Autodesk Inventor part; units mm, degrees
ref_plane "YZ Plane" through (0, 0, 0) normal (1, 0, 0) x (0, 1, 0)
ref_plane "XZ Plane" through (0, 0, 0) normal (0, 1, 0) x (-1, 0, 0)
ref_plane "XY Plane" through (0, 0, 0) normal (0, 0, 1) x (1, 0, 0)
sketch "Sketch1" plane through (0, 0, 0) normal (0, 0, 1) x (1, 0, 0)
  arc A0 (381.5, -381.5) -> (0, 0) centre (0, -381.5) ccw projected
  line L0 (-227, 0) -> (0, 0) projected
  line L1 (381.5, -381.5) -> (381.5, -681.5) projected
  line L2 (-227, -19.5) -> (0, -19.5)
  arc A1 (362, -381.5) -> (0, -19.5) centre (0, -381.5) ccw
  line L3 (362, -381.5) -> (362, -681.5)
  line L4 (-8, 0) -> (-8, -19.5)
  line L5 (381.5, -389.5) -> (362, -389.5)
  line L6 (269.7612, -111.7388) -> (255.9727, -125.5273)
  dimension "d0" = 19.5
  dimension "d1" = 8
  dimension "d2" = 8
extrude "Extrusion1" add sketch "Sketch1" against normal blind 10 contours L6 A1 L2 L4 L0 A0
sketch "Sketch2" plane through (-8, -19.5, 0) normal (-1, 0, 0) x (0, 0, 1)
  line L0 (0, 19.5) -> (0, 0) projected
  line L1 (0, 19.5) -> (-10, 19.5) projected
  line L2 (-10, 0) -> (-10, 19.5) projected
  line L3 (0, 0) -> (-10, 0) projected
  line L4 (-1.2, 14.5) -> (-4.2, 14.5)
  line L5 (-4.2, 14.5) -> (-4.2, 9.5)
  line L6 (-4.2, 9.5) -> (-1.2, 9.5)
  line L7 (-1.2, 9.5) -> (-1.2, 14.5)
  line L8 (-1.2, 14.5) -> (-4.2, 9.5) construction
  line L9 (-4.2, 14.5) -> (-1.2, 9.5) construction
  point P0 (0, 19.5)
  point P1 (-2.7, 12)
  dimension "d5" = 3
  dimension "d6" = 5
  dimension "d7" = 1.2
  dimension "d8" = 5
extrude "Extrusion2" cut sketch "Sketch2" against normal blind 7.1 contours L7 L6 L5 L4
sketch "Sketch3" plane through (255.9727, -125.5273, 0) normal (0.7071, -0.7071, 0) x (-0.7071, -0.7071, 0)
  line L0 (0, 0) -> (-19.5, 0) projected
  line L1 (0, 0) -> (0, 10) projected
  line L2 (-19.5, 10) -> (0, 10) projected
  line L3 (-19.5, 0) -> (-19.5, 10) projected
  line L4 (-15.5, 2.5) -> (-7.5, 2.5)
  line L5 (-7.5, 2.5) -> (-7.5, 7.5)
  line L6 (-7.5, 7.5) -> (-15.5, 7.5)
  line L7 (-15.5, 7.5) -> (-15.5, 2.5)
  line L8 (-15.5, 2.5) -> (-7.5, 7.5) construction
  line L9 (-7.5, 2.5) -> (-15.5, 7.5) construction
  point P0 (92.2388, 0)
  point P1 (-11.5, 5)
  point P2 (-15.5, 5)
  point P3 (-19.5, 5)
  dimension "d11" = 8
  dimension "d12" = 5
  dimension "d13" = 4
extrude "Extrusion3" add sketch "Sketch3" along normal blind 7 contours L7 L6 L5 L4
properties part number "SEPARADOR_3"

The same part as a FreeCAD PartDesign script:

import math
import FreeCAD as App
import Part
import Sketcher
from FreeCAD import Vector
Q = App.Units.Quantity

doc = App.newDocument("Part")
params = doc.addObject("Spreadsheet::Sheet", "Params")
for row, (alias, value) in enumerate([
    ("sketch1_width", "8 mm"),
    ("sketch1_height", "19.5 mm"),
    ("sketch1_radius", "362 mm"),
    ("pad1_length", "10 mm"),
    ("sketch2_width", "5 mm"),
    ("sketch2_height", "3 mm"),
    ("pocket1_length", "7.1 mm"),
    ("sketch3_width", "8 mm"),
    ("sketch3_height", "5 mm"),
    ("pad2_length", "7 mm"),
], start=1):
    params.set(f"A{row}", alias)
    params.set(f"B{row}", "=" + value)
    params.setAlias(f"B{row}", alias)

body = doc.addObject("PartDesign::Body", "Body")

# Sketch on XY plane
sketch1 = body.newObject("Sketcher::SketchObject", "Sketch")
sketch1.AttachmentSupport = (doc.getObject("XY_Plane"), [""])
sketch1.MapMode = "FlatFace"
sketch1.addGeometry(Part.LineSegment(Vector(255.9727, -125.5273, 0), Vector(269.7612, -111.7388, 0)), False)
sketch1.addGeometry(Part.ArcOfCircle(Part.Circle(Vector(0, -381.5, 0), Vector(0, 0, 1), 381.5), math.radians(45), math.radians(90)), False)
sketch1.addGeometry(Part.LineSegment(Vector(0, 0, 0), Vector(-8, 0, 0)), False)
sketch1.addGeometry(Part.LineSegment(Vector(-8, 0, 0), Vector(-8, -19.5, 0)), False)
sketch1.addGeometry(Part.LineSegment(Vector(-8, -19.5, 0), Vector(0, -19.5, 0)), False)
sketch1.addGeometry(Part.ArcOfCircle(Part.Circle(Vector(0, -381.5, 0), Vector(0, 0, 1), 362), math.radians(45), math.radians(90)), False)
sketch1.addConstraint(Sketcher.Constraint("Coincident", 0, 2, 1, 1))
sketch1.addConstraint(Sketcher.Constraint("Tangent", 1, 2, 2, 1))
sketch1.addConstraint(Sketcher.Constraint("Coincident", 2, 2, 3, 1))
sketch1.addConstraint(Sketcher.Constraint("Coincident", 3, 2, 4, 1))
sketch1.addConstraint(Sketcher.Constraint("Tangent", 4, 2, 5, 2))
sketch1.addConstraint(Sketcher.Constraint("Coincident", 5, 1, 0, 1))
sketch1.addConstraint(Sketcher.Constraint("Horizontal", 2))
sketch1.addConstraint(Sketcher.Constraint("Vertical", 3))
sketch1.addConstraint(Sketcher.Constraint("Horizontal", 4))
sketch1.addConstraint(Sketcher.Constraint("Coincident", 5, 3, 1, 3))
sketch1.addConstraint(Sketcher.Constraint("PointOnObject", 1, 3, -2))
sketch1.addConstraint(Sketcher.Constraint("PointOnObject", 2, 2, -1))
sketch1.addConstraint(Sketcher.Constraint("DistanceX", 2, 2, 2, 1, Q("8 mm")))
sketch1.addConstraint(Sketcher.Constraint("DistanceY", 3, 2, 3, 1, Q("19.5 mm")))
sketch1.addConstraint(Sketcher.Constraint("Radius", 5, Q("362 mm")))
sketch1.addConstraint(Sketcher.Constraint("Angle", 0, Q("45 deg")))
sketch1.addConstraint(Sketcher.Constraint("DistanceX", -1, 1, 0, 2, Q("269.7612 mm")))
sketch1.setExpression("Constraints[12]", "Params.sketch1_width")
sketch1.setExpression("Constraints[13]", "Params.sketch1_height")
sketch1.setExpression("Constraints[14]", "Params.sketch1_radius")
pad1 = body.newObject("PartDesign::Pad", "Pad")
pad1.Profile = sketch1
pad1.setExpression("Length", "Params.pad1_length")
pad1.Reversed = True

# Sketch on YZ plane
sketch2 = body.newObject("Sketcher::SketchObject", "Sketch001")
sketch2.AttachmentSupport = (doc.getObject("YZ_Plane"), [""])
sketch2.MapMode = "FlatFace"
sketch2.AttachmentOffset = App.Placement(Vector(0, 0, -8), App.Rotation())
sketch2.addGeometry(Part.LineSegment(Vector(-10, -1.2, 0), Vector(-5, -1.2, 0)), False)
sketch2.addGeometry(Part.LineSegment(Vector(-5, -1.2, 0), Vector(-5, -4.2, 0)), False)
sketch2.addGeometry(Part.LineSegment(Vector(-5, -4.2, 0), Vector(-10, -4.2, 0)), False)
sketch2.addGeometry(Part.LineSegment(Vector(-10, -4.2, 0), Vector(-10, -1.2, 0)), False)
sketch2.addConstraint(Sketcher.Constraint("Coincident", 0, 2, 1, 1))
sketch2.addConstraint(Sketcher.Constraint("Coincident", 1, 2, 2, 1))
sketch2.addConstraint(Sketcher.Constraint("Coincident", 2, 2, 3, 1))
sketch2.addConstraint(Sketcher.Constraint("Coincident", 3, 2, 0, 1))
sketch2.addConstraint(Sketcher.Constraint("Horizontal", 0))
sketch2.addConstraint(Sketcher.Constraint("Vertical", 1))
sketch2.addConstraint(Sketcher.Constraint("Horizontal", 2))
sketch2.addConstraint(Sketcher.Constraint("Vertical", 3))
sketch2.addConstraint(Sketcher.Constraint("DistanceX", 0, 1, 0, 2, Q("5 mm")))
sketch2.addConstraint(Sketcher.Constraint("DistanceY", 1, 2, 1, 1, Q("3 mm")))
sketch2.addConstraint(Sketcher.Constraint("DistanceX", 0, 2, -1, 1, Q("5 mm")))
sketch2.addConstraint(Sketcher.Constraint("DistanceY", 0, 2, -1, 1, Q("1.2 mm")))
sketch2.setExpression("Constraints[8]", "Params.sketch2_width")
sketch2.setExpression("Constraints[9]", "Params.sketch2_height")
pocket1 = body.newObject("PartDesign::Pocket", "Pocket")
pocket1.Profile = sketch2
pocket1.setExpression("Length", "Params.pocket1_length")
pocket1.Reversed = True

# Sketch on an angled plane
sketch3 = body.newObject("Sketcher::SketchObject", "Sketch002")
sketch3.Placement = App.Placement(Vector(255.9727, -125.5273, 0), App.Rotation(Vector(-0.707106781, -0.707106781, 0), Vector(0, 0, -0.999999999), Vector(0.707106781, -0.707106781, 0), "ZXY"))
sketch3.addGeometry(Part.LineSegment(Vector(-15.5, 7.5, 0), Vector(-15.5, 2.5, 0)), False)
sketch3.addGeometry(Part.LineSegment(Vector(-15.5, 2.5, 0), Vector(-7.5, 2.5, 0)), False)
sketch3.addGeometry(Part.LineSegment(Vector(-7.5, 2.5, 0), Vector(-7.5, 7.5, 0)), False)
sketch3.addGeometry(Part.LineSegment(Vector(-7.5, 7.5, 0), Vector(-15.5, 7.5, 0)), False)
sketch3.addConstraint(Sketcher.Constraint("Coincident", 0, 2, 1, 1))
sketch3.addConstraint(Sketcher.Constraint("Coincident", 1, 2, 2, 1))
sketch3.addConstraint(Sketcher.Constraint("Coincident", 2, 2, 3, 1))
sketch3.addConstraint(Sketcher.Constraint("Coincident", 3, 2, 0, 1))
sketch3.addConstraint(Sketcher.Constraint("Vertical", 0))
sketch3.addConstraint(Sketcher.Constraint("Horizontal", 1))
sketch3.addConstraint(Sketcher.Constraint("Vertical", 2))
sketch3.addConstraint(Sketcher.Constraint("Horizontal", 3))
sketch3.addConstraint(Sketcher.Constraint("DistanceX", 1, 1, 1, 2, Q("8 mm")))
sketch3.addConstraint(Sketcher.Constraint("DistanceY", 0, 2, 0, 1, Q("5 mm")))
sketch3.addConstraint(Sketcher.Constraint("DistanceX", 0, 2, -1, 1, Q("15.5 mm")))
sketch3.addConstraint(Sketcher.Constraint("DistanceY", -1, 1, 0, 2, Q("2.5 mm")))
sketch3.setExpression("Constraints[8]", "Params.sketch3_width")
sketch3.setExpression("Constraints[9]", "Params.sketch3_height")
pad2 = body.newObject("PartDesign::Pad", "Pad001")
pad2.Profile = sketch3
pad2.setExpression("Length", "Params.pad2_length")

doc.recompute()
